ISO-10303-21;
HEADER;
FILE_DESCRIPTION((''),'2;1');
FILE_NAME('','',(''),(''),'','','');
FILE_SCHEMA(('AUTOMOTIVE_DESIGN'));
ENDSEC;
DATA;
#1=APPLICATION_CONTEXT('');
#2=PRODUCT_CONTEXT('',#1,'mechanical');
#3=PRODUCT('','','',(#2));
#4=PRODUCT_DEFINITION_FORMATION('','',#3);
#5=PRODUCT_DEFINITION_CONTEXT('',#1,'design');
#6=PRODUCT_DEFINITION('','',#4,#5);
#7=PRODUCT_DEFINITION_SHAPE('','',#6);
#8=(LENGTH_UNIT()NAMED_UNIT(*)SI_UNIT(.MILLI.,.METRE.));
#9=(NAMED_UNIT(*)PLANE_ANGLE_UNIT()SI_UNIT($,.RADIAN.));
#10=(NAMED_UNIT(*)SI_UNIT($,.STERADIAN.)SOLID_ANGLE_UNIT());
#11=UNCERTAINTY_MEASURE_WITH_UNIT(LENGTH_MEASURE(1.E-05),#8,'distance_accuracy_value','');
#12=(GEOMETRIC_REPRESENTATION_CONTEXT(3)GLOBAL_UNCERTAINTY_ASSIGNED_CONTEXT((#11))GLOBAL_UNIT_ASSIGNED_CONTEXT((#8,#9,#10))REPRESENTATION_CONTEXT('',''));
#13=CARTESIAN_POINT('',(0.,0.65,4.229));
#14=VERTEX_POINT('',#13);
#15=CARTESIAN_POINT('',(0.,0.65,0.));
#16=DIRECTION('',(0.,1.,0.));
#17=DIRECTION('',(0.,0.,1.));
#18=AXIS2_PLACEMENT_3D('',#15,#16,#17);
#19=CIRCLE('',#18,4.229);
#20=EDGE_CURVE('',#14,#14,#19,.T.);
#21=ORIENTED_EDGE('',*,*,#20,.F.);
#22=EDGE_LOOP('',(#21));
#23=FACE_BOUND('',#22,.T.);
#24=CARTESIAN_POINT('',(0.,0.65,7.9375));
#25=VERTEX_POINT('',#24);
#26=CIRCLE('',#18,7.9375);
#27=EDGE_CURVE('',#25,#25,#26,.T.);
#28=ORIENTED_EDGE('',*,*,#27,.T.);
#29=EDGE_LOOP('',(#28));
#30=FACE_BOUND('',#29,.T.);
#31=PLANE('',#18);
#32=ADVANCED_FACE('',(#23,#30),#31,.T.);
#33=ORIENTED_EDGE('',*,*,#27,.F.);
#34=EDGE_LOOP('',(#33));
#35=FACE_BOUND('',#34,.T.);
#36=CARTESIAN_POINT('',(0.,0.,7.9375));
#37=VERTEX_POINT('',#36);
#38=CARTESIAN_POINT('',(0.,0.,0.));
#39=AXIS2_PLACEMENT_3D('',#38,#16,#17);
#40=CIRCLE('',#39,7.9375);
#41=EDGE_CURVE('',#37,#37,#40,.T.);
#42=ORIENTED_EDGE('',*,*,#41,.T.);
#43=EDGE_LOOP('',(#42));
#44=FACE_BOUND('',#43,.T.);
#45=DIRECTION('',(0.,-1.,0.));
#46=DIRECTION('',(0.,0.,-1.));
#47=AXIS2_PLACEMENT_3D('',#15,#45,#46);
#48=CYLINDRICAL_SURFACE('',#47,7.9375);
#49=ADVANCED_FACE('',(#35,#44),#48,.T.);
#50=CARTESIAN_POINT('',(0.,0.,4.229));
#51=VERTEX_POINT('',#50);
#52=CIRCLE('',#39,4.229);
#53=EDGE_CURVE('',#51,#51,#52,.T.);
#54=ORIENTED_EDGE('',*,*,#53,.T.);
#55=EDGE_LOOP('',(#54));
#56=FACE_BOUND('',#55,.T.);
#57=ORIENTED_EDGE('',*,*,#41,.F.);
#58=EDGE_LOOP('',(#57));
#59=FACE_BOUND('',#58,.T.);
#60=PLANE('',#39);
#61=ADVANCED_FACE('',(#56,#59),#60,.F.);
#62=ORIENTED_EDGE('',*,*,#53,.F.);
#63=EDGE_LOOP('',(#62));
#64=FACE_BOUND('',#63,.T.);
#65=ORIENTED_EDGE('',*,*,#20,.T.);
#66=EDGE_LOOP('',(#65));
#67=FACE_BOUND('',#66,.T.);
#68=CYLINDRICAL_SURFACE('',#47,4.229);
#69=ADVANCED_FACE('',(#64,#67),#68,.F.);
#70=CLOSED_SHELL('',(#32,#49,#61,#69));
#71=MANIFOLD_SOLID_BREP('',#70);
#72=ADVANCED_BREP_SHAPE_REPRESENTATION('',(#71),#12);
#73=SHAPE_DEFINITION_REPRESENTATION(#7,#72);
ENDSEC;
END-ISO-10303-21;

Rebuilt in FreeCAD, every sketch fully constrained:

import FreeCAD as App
import Part
import Sketcher
from FreeCAD import Vector
Q = App.Units.Quantity

doc = App.newDocument("Part")
body = doc.addObject("PartDesign::Body", "Body")

sketch1 = body.newObject("Sketcher::SketchObject", "Sketch")
sketch1.AttachmentSupport = (doc.getObject("XZ_Plane"), [""])
sketch1.MapMode = "FlatFace"
sketch1.addGeometry([
    Part.Circle(Vector(0, 0, 0), Vector(0, 0, 1), 7.9375),
    Part.Circle(Vector(0, 0, 0), Vector(0, 0, 1), 4.229),
], False)
sketch1.addConstraint([
    Sketcher.Constraint("Coincident", 0, 3, -1, 1),
    Sketcher.Constraint("Coincident", 1, 3, -1, 1),
    Sketcher.Constraint("Diameter", 0, Q("0.625 in")),
    Sketcher.Constraint("Diameter", 1, 8.458),
])
pad1 = body.newObject("PartDesign::Pad", "Pad")
pad1.Profile = sketch1
pad1.Length = 0.65
pad1.Reversed = True

doc.recompute()
